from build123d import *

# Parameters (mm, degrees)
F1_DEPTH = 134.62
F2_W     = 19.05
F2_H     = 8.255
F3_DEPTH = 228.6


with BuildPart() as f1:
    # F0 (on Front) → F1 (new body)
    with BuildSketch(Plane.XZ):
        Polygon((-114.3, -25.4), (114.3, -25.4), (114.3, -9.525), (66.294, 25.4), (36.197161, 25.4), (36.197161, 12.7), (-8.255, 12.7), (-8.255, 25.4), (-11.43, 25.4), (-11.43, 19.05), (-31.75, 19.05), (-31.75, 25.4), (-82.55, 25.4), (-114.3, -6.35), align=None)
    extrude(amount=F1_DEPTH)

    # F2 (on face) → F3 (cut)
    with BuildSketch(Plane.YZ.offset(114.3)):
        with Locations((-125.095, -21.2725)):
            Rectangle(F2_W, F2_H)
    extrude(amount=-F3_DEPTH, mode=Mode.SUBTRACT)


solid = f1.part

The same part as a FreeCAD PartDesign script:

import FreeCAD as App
import Part
import Sketcher
from FreeCAD import Vector
Q = App.Units.Quantity


def add_polygon(sketch, points):
    """Adds a closed chain of lines whose ends are joined by coincident constraints."""
    first, n = sketch.GeometryCount, len(points)
    for a, b in zip(points, points[1:] + points[:1]):
        sketch.addGeometry(Part.LineSegment(App.Vector(*a, 0), App.Vector(*b, 0)), False)
    for i in range(n):
        sketch.addConstraint(Sketcher.Constraint("Coincident", first + i, 2, first + (i + 1) % n, 1))

doc = App.newDocument("Part")
body = doc.addObject("PartDesign::Body", "Body")

sketch1 = body.newObject("Sketcher::SketchObject", "Sketch")
sketch1.AttachmentSupport = (doc.getObject("XZ_Plane"), [""])
sketch1.MapMode = "FlatFace"
add_polygon(sketch1, [(-114.3, -25.4), (114.3, -25.4), (114.3, -9.5), (66.3, 25.4), (36.2, 25.4), (36.2, 12.7), (-8.3, 12.7), (-8.3, 25.4), (-11.4, 25.4), (-11.4, 19.1), (-31.8, 19.1), (-31.8, 25.4), (-82.5, 25.4), (-114.3, -6.3)])
sketch1.addConstraint(Sketcher.Constraint("Horizontal", 0))
sketch1.addConstraint(Sketcher.Constraint("Vertical", 1))
sketch1.addConstraint(Sketcher.Constraint("Horizontal", 3))
sketch1.addConstraint(Sketcher.Constraint("Vertical", 4))
sketch1.addConstraint(Sketcher.Constraint("Horizontal", 5))
sketch1.addConstraint(Sketcher.Constraint("Vertical", 6))
sketch1.addConstraint(Sketcher.Constraint("Horizontal", 7))
sketch1.addConstraint(Sketcher.Constraint("Vertical", 8))
sketch1.addConstraint(Sketcher.Constraint("Horizontal", 9))
sketch1.addConstraint(Sketcher.Constraint("Vertical", 10))
sketch1.addConstraint(Sketcher.Constraint("Horizontal", 11))
sketch1.addConstraint(Sketcher.Constraint("Vertical", 13))
sketch1.addConstraint(Sketcher.Constraint("Horizontal", 3, 2, 6, 2))
sketch1.addConstraint(Sketcher.Constraint("Horizontal", 7, 2, 10, 2))
sketch1.addConstraint(Sketcher.Constraint("DistanceX", 0, 1, 0, 2, Q("9 in")))
sketch1.addConstraint(Sketcher.Constraint("DistanceX", 11, 2, 11, 1, Q("2 in")))
sketch1.addConstraint(Sketcher.Constraint("DistanceX", 9, 2, 9, 1, Q("0.8 in")))
sketch1.addConstraint(Sketcher.Constraint("DistanceY", 4, 2, 4, 1, Q("0.5 in")))
sketch1.addConstraint(Sketcher.Constraint("DistanceY", 0, 2, -1, 1, Q("1 in")))
sketch1.addConstraint(Sketcher.Constraint("DistanceY", -1, 1, 2, 2, Q("1 in")))
sketch1.addConstraint(Sketcher.Constraint("Angle", 12, Q("-135 deg")))
sketch1.addConstraint(Sketcher.Constraint("DistanceY", 12, 2, 9, 2, Q("1 in")))
sketch1.addConstraint(Sketcher.Constraint("DistanceY", 8, 2, 8, 1, Q("0.25 in")))
sketch1.addConstraint(Sketcher.Constraint("DistanceX", -1, 1, 0, 2, Q("4.5 in")))
sketch1.addConstraint(Sketcher.Constraint("DistanceX", 7, 2, 7, 1, Q("0.125 in")))
sketch1.addConstraint(Sketcher.Constraint("DistanceY", 1, 1, 1, 2, Q("0.625 in")))
sketch1.addConstraint(Sketcher.Constraint("DistanceX", -1, 1, 2, 2, Q("2.61 in")))
sketch1.addConstraint(Sketcher.Constraint("DistanceX", 3, 2, 3, 1, 30.096839))
pad1 = body.newObject("PartDesign::Pad", "Pad")
pad1.Profile = sketch1
pad1.Length = Q("5.3 in")

sketch2 = body.newObject("Sketcher::SketchObject", "Sketch001")
sketch2.AttachmentSupport = (doc.getObject("YZ_Plane"), [""])
sketch2.MapMode = "FlatFace"
sketch2.AttachmentOffset = App.Placement(Vector(0, 0, 4.5 * 25.4), App.Rotation())
add_polygon(sketch2, [(-135, -17), (-135, -25), (-116, -25), (-116, -17)])
sketch2.addConstraint(Sketcher.Constraint("Vertical", 0))
sketch2.addConstraint(Sketcher.Constraint("Horizontal", 1))
sketch2.addConstraint(Sketcher.Constraint("Vertical", 2))
sketch2.addConstraint(Sketcher.Constraint("Horizontal", 3))
sketch2.addConstraint(Sketcher.Constraint("DistanceY", 0, 2, -1, 1, Q("1 in")))
sketch2.addConstraint(Sketcher.Constraint("DistanceX", 1, 1, 1, 2, Q("0.75 in")))
sketch2.addConstraint(Sketcher.Constraint("DistanceX", 0, 2, -1, 1, Q("5.3 in")))
sketch2.addConstraint(Sketcher.Constraint("DistanceY", 0, 2, 0, 1, Q("0.325 in")))
pocket1 = body.newObject("PartDesign::Pocket", "Pocket")
pocket1.Profile = sketch2
pocket1.Length = Q("9 in")

doc.recompute()
